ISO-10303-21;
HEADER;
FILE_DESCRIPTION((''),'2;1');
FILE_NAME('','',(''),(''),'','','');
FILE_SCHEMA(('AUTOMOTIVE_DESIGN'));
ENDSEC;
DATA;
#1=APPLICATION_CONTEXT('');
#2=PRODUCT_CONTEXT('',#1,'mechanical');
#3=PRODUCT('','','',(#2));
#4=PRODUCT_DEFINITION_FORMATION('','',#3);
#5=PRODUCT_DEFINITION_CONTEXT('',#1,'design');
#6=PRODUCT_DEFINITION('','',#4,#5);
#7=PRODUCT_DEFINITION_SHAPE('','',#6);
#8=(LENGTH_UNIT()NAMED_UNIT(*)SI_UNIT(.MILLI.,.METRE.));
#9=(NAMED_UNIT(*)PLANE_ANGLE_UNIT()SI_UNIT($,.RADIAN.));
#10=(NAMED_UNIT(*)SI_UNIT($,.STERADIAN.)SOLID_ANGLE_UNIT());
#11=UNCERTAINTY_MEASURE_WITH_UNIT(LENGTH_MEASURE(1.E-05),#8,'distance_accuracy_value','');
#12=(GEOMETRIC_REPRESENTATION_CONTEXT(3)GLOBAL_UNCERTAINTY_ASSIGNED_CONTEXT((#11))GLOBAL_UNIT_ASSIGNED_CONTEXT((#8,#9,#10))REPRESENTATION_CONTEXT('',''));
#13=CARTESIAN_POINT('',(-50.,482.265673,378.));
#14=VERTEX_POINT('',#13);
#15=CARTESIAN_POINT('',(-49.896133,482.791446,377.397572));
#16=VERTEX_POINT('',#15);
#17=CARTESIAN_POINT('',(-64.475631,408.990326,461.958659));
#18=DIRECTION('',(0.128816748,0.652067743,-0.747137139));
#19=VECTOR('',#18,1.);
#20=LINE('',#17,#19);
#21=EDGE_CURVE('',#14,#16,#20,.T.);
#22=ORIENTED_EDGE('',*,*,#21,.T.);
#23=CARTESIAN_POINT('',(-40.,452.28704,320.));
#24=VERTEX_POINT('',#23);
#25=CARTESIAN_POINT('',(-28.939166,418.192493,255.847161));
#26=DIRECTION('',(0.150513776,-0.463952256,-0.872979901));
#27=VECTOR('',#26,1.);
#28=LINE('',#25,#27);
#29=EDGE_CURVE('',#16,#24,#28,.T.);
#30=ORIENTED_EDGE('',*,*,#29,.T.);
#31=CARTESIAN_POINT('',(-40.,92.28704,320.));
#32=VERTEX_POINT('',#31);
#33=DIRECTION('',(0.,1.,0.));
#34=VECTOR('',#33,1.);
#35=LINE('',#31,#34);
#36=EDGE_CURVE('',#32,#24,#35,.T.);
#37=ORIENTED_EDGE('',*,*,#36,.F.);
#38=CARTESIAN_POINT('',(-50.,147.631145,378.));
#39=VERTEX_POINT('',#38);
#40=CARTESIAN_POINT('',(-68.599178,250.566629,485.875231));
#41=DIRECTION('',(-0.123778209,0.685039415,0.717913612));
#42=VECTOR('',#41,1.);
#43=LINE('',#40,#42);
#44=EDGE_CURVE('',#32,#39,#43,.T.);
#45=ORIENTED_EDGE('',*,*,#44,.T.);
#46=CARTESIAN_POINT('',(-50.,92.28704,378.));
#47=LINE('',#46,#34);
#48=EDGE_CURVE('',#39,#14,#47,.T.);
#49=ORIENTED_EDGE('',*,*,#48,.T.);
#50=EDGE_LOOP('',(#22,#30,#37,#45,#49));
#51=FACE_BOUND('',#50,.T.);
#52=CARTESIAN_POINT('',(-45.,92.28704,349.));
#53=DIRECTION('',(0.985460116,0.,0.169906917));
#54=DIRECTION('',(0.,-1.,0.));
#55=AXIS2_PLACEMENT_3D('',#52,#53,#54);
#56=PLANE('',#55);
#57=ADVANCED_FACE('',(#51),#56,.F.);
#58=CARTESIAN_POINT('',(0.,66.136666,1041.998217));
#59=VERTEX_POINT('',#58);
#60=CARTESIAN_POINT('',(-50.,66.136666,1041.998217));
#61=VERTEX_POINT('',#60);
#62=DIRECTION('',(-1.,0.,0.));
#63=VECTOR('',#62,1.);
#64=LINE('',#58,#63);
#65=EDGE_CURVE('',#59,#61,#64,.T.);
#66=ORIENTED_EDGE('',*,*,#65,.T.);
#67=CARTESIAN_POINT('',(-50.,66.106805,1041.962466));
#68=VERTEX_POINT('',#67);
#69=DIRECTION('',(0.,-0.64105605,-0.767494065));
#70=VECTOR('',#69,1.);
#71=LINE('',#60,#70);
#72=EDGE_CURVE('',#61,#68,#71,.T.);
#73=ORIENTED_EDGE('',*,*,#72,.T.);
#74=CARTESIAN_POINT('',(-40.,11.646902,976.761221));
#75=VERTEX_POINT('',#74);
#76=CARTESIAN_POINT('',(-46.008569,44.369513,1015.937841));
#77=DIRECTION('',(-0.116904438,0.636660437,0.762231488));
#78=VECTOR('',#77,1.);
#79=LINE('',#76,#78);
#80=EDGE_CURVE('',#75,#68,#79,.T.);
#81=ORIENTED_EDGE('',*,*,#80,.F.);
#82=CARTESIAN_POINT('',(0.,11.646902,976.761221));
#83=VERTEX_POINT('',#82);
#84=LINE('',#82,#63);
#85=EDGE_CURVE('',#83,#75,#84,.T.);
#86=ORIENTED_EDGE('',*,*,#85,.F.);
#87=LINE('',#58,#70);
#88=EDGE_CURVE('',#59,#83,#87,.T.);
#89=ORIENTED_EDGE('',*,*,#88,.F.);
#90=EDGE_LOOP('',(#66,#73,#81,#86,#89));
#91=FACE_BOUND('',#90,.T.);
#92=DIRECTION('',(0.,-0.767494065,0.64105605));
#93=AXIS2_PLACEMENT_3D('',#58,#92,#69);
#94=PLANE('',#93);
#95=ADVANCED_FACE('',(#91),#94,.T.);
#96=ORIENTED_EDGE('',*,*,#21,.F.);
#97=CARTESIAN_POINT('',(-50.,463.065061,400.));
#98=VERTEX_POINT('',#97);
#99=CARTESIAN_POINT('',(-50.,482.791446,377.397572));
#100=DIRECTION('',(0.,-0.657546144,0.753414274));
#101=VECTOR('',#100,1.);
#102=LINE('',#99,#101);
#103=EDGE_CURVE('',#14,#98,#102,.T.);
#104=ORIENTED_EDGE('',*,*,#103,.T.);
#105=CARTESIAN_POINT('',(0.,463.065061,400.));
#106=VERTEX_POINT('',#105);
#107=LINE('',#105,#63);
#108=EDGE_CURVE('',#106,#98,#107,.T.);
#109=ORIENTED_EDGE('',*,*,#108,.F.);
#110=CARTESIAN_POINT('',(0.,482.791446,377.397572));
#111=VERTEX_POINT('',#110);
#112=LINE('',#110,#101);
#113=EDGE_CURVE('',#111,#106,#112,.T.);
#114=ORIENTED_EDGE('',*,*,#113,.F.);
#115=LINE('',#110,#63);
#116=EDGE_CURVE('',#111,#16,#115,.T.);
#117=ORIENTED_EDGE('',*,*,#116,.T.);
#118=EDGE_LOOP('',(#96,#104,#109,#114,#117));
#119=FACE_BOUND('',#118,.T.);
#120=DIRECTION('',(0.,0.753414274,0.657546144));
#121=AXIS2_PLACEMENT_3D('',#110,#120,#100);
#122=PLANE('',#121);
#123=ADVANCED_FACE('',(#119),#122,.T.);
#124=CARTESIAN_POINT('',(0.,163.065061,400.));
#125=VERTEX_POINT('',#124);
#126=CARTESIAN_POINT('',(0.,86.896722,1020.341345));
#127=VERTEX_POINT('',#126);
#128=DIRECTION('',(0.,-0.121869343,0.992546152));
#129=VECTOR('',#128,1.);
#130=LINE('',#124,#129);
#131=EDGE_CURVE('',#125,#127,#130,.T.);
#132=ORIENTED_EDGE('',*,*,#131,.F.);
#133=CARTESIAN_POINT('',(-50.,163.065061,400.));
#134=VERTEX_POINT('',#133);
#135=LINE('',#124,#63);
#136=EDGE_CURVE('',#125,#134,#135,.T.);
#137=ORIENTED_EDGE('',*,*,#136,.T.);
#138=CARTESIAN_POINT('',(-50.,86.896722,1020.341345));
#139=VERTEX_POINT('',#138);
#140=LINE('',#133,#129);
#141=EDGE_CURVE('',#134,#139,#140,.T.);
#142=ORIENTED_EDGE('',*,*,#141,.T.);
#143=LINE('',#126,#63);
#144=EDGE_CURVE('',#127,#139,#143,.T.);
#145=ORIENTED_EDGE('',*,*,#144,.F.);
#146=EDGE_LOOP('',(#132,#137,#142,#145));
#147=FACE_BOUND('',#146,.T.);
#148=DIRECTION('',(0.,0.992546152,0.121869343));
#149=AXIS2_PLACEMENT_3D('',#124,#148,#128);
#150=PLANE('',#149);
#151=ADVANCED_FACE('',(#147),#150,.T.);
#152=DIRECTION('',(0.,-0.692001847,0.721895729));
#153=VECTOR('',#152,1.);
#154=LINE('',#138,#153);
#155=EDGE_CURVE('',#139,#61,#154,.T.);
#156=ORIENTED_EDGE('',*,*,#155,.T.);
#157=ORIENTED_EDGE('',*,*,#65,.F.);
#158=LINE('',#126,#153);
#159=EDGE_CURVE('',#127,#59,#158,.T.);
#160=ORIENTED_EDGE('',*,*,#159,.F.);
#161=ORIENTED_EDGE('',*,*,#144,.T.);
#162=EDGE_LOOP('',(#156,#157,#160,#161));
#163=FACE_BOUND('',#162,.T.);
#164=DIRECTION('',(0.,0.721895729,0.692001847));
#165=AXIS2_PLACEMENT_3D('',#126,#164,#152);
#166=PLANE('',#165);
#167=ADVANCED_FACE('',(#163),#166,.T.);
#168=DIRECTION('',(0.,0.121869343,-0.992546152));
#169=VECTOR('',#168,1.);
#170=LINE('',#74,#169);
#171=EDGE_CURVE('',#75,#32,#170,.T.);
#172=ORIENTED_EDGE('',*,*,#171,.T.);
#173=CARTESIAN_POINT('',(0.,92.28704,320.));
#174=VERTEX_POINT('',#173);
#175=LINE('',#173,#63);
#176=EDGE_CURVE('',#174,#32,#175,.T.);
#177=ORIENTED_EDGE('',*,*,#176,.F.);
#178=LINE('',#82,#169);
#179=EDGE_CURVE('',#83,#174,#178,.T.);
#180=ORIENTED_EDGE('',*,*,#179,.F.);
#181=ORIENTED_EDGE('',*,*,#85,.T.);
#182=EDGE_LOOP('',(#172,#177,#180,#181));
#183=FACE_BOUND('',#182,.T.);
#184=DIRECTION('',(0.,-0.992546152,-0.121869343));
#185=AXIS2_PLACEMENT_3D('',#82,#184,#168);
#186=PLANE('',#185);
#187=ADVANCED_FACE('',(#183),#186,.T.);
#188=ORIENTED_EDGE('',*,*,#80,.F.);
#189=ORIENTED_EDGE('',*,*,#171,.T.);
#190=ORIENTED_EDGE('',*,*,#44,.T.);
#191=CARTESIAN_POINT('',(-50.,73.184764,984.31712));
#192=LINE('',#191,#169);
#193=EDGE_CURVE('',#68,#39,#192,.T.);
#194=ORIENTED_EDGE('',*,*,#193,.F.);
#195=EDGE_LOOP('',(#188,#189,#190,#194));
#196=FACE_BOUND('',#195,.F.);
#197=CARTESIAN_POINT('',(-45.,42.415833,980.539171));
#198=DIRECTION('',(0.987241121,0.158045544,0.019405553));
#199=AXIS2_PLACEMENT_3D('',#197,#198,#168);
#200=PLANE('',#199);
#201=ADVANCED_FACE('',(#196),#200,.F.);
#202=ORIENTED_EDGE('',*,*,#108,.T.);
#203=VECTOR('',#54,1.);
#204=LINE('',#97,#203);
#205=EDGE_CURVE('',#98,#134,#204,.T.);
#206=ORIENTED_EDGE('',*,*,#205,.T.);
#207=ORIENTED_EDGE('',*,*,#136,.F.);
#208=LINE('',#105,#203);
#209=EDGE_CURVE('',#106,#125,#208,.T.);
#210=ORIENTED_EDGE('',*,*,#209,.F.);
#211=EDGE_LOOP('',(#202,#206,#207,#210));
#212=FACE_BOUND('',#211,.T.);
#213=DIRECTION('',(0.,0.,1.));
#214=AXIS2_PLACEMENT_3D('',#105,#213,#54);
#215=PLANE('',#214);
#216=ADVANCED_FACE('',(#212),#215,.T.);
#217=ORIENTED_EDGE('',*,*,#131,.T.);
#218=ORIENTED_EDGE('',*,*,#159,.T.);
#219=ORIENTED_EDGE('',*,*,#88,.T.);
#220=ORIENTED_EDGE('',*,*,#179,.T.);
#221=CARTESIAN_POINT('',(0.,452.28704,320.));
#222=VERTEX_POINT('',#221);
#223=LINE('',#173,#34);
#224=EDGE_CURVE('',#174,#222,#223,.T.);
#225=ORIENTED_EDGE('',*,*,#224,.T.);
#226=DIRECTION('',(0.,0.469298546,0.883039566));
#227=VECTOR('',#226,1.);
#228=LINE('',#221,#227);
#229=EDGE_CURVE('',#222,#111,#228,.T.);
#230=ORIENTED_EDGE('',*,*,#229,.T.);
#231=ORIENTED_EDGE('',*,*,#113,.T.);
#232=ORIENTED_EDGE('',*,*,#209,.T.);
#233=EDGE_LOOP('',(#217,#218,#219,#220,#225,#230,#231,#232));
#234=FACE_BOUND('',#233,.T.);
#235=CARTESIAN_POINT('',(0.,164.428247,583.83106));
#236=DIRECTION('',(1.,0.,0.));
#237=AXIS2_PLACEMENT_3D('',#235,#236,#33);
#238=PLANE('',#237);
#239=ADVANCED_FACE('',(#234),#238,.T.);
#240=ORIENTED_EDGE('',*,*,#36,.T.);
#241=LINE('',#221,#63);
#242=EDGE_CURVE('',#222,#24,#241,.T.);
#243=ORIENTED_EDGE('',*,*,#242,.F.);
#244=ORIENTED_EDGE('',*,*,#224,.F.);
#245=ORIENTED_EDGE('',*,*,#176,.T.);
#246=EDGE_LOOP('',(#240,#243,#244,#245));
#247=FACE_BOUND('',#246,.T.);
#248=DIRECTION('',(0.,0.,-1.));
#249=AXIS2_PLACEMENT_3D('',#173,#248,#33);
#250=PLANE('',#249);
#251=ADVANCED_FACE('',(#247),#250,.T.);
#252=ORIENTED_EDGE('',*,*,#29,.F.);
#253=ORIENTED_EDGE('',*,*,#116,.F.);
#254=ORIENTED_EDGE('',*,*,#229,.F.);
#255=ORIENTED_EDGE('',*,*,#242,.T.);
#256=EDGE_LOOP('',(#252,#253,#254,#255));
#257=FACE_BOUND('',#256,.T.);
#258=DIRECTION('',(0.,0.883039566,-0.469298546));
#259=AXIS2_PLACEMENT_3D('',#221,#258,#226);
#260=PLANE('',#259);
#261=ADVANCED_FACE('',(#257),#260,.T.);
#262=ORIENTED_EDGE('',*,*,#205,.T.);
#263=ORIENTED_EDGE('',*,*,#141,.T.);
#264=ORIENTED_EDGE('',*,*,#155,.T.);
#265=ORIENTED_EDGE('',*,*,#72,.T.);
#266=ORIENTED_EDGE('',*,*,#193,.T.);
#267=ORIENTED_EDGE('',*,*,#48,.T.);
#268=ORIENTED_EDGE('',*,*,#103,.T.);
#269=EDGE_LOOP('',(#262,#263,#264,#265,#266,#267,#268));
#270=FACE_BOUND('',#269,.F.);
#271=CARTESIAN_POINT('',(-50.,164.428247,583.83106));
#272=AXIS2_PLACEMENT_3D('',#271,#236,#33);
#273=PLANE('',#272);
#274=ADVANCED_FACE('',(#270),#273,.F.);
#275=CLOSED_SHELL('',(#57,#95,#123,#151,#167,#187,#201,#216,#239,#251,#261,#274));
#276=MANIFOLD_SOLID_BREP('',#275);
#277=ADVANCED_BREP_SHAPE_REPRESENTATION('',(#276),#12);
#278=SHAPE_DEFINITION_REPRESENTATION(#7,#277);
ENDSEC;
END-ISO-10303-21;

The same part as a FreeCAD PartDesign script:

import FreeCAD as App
import Part
import Sketcher
from FreeCAD import Vector
Q = App.Units.Quantity


def edges_at(feature, points):
    """Names of the edges that pass closest to the given points."""
    edges = feature.Shape.Edges
    near = lambda p: min(range(len(edges)), key=lambda i: edges[i].distToShape(Part.Vertex(*p))[0])
    return sorted({f"Edge{near(p) + 1}" for p in points})

doc = App.newDocument("Part")
body = doc.addObject("PartDesign::Body", "Body")

# Sketch on YZ plane
sketch1 = body.newObject("Sketcher::SketchObject", "Sketch")
sketch1.AttachmentSupport = (doc.getObject("YZ_Plane"), [""])
sketch1.MapMode = "FlatFace"
sketch1.addGeometry([
    Part.LineSegment(Vector(482.791446, 377.397572, 0), Vector(463.065061, 400, 0)),  # 0
    Part.LineSegment(Vector(463.065061, 400, 0), Vector(163.065061, 400, 0)),  # 1
    Part.LineSegment(Vector(163.065061, 400, 0), Vector(86.896722, 1020.341345, 0)),  # 2
    Part.LineSegment(Vector(86.896722, 1020.341345, 0), Vector(66.136666, 1041.998217, 0)),  # 3
    Part.LineSegment(Vector(66.136666, 1041.998217, 0), Vector(11.646902, 976.761221, 0)),  # 4
    Part.LineSegment(Vector(11.646902, 976.761221, 0), Vector(92.28704, 320, 0)),  # 5
    Part.LineSegment(Vector(92.28704, 320, 0), Vector(452.28704, 320, 0)),  # 6
    Part.LineSegment(Vector(452.28704, 320, 0), Vector(482.791446, 377.397572, 0)),  # 7
], False)
sketch1.addConstraint([
    Sketcher.Constraint("Coincident", 0, 2, 1, 1),
    Sketcher.Constraint("Coincident", 1, 2, 2, 1),
    Sketcher.Constraint("Coincident", 2, 2, 3, 1),
    Sketcher.Constraint("Coincident", 3, 2, 4, 1),
    Sketcher.Constraint("Coincident", 4, 2, 5, 1),
    Sketcher.Constraint("Coincident", 5, 2, 6, 1),
    Sketcher.Constraint("Coincident", 6, 2, 7, 1),
    Sketcher.Constraint("Coincident", 7, 2, 0, 1),
    Sketcher.Constraint("Horizontal", 1),
    Sketcher.Constraint("Horizontal", 6),
    Sketcher.Constraint("Parallel", 2, 5),
    Sketcher.Constraint("Equal", 0, 3),
    Sketcher.Constraint("DistanceX", 1, 2, 1, 1, Q("300 mm")),
    Sketcher.Constraint("DistanceX", 6, 1, 6, 2, Q("360 mm")),
    Sketcher.Constraint("Angle", 2, Q("97 deg")),
    Sketcher.Constraint("Distance", 0, Q("30 mm")),
    Sketcher.Constraint("Distance", 2, Q("625 mm")),
    Sketcher.Constraint("Distance", 4, Q("85 mm")),
    Sketcher.Constraint("Distance", 7, Q("65 mm")),
    Sketcher.Constraint("DistanceY", -1, 1, 0, 2, Q("400 mm")),
    Sketcher.Constraint("DistanceY", -1, 1, 5, 2, Q("320 mm")),
    Sketcher.Constraint("DistanceX", -1, 1, 0, 2, Q("463.065061 mm")),
    Sketcher.Constraint("DistanceY", -1, 1, 4, 2, Q("976.761221 mm")),
    Sketcher.Constraint("DistanceX", -1, 1, 5, 2, Q("92.28704 mm")),
])
pad1 = body.newObject("PartDesign::Pad", "Pad")
pad1.Profile = sketch1
pad1.Length = 50
pad1.Reversed = True
doc.recompute()

chamfer = body.newObject("PartDesign::Chamfer", "Chamfer")
chamfer.Base = (pad1, edges_at(pad1, [(-50, 272.287, 320)]))
chamfer.ChamferType = "Two distances"
chamfer.Size = 58
chamfer.Size2 = 10
chamfer.FlipDirection = True
doc.recompute()

chamfer2 = body.newObject("PartDesign::Chamfer", "Chamfer001")
chamfer2.Base = (chamfer, edges_at(chamfer, [(-50, 48.406, 677.381)]))
chamfer2.ChamferType = "Two distances"
chamfer2.Size = 10
chamfer2.Size2 = 62
chamfer2.FlipDirection = True

doc.recompute()
